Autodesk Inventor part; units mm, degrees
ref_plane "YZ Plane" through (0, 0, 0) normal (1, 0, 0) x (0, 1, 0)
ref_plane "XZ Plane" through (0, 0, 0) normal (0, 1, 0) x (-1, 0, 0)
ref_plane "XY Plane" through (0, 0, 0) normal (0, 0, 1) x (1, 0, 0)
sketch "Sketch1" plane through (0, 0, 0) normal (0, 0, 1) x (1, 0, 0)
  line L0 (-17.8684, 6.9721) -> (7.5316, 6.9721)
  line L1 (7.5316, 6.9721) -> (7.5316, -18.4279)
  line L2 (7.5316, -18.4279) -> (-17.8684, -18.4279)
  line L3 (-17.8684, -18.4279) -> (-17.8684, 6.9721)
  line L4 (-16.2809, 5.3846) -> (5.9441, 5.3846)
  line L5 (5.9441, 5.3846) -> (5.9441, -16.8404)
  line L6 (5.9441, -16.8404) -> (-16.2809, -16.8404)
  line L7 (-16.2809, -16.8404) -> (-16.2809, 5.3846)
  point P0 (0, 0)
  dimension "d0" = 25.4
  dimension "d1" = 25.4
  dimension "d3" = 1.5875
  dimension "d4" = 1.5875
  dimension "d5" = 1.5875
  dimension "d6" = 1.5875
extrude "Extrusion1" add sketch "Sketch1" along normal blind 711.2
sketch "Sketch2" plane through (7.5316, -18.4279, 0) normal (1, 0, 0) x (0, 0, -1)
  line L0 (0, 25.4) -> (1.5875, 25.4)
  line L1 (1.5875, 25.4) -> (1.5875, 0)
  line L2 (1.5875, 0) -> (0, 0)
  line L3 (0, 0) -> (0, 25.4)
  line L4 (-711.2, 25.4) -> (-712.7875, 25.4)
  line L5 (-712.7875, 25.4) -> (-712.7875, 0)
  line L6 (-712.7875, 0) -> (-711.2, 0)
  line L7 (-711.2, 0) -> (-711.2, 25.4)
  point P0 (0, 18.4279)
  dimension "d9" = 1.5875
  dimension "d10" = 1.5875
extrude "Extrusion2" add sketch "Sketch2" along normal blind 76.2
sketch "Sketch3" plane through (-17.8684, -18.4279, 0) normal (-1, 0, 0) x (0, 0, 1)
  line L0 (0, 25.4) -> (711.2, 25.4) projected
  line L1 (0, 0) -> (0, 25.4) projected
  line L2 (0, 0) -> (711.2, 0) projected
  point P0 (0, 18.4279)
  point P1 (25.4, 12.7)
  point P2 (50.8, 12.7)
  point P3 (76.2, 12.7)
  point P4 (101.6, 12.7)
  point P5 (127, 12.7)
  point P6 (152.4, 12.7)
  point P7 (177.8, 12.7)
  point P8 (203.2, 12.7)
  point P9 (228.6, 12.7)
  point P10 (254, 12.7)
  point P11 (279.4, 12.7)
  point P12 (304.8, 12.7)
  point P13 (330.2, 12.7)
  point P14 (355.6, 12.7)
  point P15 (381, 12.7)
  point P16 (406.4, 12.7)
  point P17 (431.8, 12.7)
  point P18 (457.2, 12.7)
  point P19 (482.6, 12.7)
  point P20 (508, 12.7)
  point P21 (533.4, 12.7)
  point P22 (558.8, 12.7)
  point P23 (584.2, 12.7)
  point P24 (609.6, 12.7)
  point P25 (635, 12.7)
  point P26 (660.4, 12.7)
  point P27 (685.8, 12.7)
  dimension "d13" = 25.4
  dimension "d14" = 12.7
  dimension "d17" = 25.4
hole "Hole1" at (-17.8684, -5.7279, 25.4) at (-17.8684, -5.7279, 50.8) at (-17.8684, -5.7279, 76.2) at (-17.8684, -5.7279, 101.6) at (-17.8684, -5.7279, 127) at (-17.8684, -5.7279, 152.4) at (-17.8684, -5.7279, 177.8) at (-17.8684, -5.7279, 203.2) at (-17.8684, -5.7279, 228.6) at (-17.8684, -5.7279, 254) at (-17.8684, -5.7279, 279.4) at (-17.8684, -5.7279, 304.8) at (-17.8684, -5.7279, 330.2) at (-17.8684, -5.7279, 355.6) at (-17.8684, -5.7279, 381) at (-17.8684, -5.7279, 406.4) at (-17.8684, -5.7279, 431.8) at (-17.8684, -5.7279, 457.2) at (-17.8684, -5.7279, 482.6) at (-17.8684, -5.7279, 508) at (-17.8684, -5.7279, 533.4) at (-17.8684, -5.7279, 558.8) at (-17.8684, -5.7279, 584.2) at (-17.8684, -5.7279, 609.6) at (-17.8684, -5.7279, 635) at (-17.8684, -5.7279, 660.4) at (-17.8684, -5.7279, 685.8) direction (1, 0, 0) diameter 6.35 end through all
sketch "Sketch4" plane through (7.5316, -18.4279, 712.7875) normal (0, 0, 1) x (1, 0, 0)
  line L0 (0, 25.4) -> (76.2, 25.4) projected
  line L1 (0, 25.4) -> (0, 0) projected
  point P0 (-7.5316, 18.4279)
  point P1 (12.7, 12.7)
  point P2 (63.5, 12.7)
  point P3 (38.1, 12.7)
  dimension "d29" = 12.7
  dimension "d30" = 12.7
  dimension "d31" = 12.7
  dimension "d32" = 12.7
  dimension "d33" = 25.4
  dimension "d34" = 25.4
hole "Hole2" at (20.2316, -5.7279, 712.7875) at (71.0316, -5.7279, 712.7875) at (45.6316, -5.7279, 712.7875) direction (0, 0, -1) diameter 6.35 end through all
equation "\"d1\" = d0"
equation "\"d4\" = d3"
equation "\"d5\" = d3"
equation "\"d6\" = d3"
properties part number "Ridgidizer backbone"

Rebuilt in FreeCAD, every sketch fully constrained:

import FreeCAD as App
import Part
import Sketcher
Q = App.Units.Quantity


def add_polygon(sketch, points):
    """Adds a closed chain of lines whose ends are joined by coincident constraints."""
    first, n = sketch.GeometryCount, len(points)
    for a, b in zip(points, points[1:] + points[:1]):
        sketch.addGeometry(Part.LineSegment(App.Vector(*a, 0), App.Vector(*b, 0)), False)
    for i in range(n):
        sketch.addConstraint(Sketcher.Constraint("Coincident", first + i, 2, first + (i + 1) % n, 1))

doc = App.newDocument("Part")
body = doc.addObject("PartDesign::Body", "Body")
body.AllowCompound = True

sketch1 = doc.addObject("Sketcher::SketchObject", "Sketch")
body.addObject(sketch1)
sketch1.AttachmentSupport = (doc.XY_Plane, [""])
sketch1.MapMode = "FlatFace"
add_polygon(sketch1, [(7.5316, 6.9721), (-17.8684, 6.9721), (-17.8684, -18.4279), (7.5316, -18.4279)])
add_polygon(sketch1, [(-16.2809, -16.8404), (-16.2809, 5.3846), (5.9441, 5.3846), (5.9441, -16.8404)])
sketch1.addConstraint(Sketcher.Constraint("Horizontal", 0))
sketch1.addConstraint(Sketcher.Constraint("Vertical", 1))
sketch1.addConstraint(Sketcher.Constraint("Horizontal", 2))
sketch1.addConstraint(Sketcher.Constraint("Vertical", 3))
sketch1.addConstraint(Sketcher.Constraint("Vertical", 4))
sketch1.addConstraint(Sketcher.Constraint("Horizontal", 5))
sketch1.addConstraint(Sketcher.Constraint("Vertical", 6))
sketch1.addConstraint(Sketcher.Constraint("Horizontal", 7))
sketch1.addConstraint(Sketcher.Constraint("Equal", 2, 1))
sketch1.addConstraint(Sketcher.Constraint("Equal", 7, 4))
sketch1.addConstraint(Sketcher.Constraint("DistanceX", 0, 2, 0, 1, Q("1 in")))
sketch1.addConstraint(Sketcher.Constraint("DistanceX", 0, 2, 4, 2, Q("0.0625 in")))
sketch1.addConstraint(Sketcher.Constraint("DistanceY", 4, 2, 0, 2, Q("0.0625 in")))
sketch1.addConstraint(Sketcher.Constraint("DistanceX", 5, 2, 3, 2, Q("0.0625 in")))
sketch1.addConstraint(Sketcher.Constraint("DistanceY", -1, 1, 4, 2, Q("0.212 in")))
sketch1.addConstraint(Sketcher.Constraint("DistanceX", 0, 2, -1, 1, 17.8684))
pad1 = doc.addObject("PartDesign::Pad", "Pad")
body.addObject(pad1)
pad1.Profile = sketch1
pad1.Length = Q("28 in")

sketch2 = doc.addObject("Sketcher::SketchObject", "Sketch001")
body.addObject(sketch2)
sketch2.AttachmentSupport = (doc.YZ_Plane, [""])
sketch2.MapMode = "FlatFace"
sketch2.AttachmentOffset = App.Placement(App.Vector(0, 0, 7.5316), App.Rotation())
add_polygon(sketch2, [(6.9721, -1.5875), (6.9721, 0), (-18.4279, 0), (-18.4279, -1.5875)])
add_polygon(sketch2, [(-18.4279, 711.2), (6.9721, 711.2), (6.9721, 712.7875), (-18.4279, 712.7875)])
sketch2.addConstraint(Sketcher.Constraint("Vertical", 0))
sketch2.addConstraint(Sketcher.Constraint("Horizontal", 1))
sketch2.addConstraint(Sketcher.Constraint("Vertical", 2))
sketch2.addConstraint(Sketcher.Constraint("Horizontal", 3))
sketch2.addConstraint(Sketcher.Constraint("Horizontal", 4))
sketch2.addConstraint(Sketcher.Constraint("Vertical", 5))
sketch2.addConstraint(Sketcher.Constraint("Horizontal", 6))
sketch2.addConstraint(Sketcher.Constraint("Vertical", 7))
sketch2.addConstraint(Sketcher.Constraint("PointOnObject", 0, 2, -1))
sketch2.addConstraint(Sketcher.Constraint("Vertical", 3, 2, 4, 2))
sketch2.addConstraint(Sketcher.Constraint("Vertical", 2, 2, 6, 2))
sketch2.addConstraint(Sketcher.Constraint("Equal", 2, 5))
sketch2.addConstraint(Sketcher.Constraint("DistanceX", 1, 2, 1, 1, Q("1 in")))
sketch2.addConstraint(Sketcher.Constraint("DistanceY", 0, 1, 0, 2, Q("0.0625 in")))
sketch2.addConstraint(Sketcher.Constraint("DistanceY", -1, 1, 4, 2, Q("28 in")))
sketch2.addConstraint(Sketcher.Constraint("DistanceX", -1, 1, 0, 2, Q("0.2745 in")))
pad2 = doc.addObject("PartDesign::Pad", "Pad001")
body.addObject(pad2)
pad2.Profile = sketch2
pad2.Length = Q("3 in")

sketch3 = doc.addObject("Sketcher::SketchObject", "Sketch002")
body.addObject(sketch3)
sketch3.AttachmentSupport = (doc.YZ_Plane, [""])
sketch3.MapMode = "FlatFace"
sketch3.AttachmentOffset = App.Placement(App.Vector(0, 0, -17.8684), App.Rotation())
sketch3.addGeometry(Part.Circle(App.Vector(-5.7279, 25.4, 0), App.Vector(0, 0, 1), 3.175), False)
sketch3.addGeometry(Part.Circle(App.Vector(-5.7279, 50.8, 0), App.Vector(0, 0, 1), 3.175), False)
sketch3.addGeometry(Part.Circle(App.Vector(-5.7279, 76.2, 0), App.Vector(0, 0, 1), 3.175), False)
sketch3.addGeometry(Part.Circle(App.Vector(-5.7279, 101.6, 0), App.Vector(0, 0, 1), 3.175), False)
sketch3.addGeometry(Part.Circle(App.Vector(-5.7279, 127, 0), App.Vector(0, 0, 1), 3.175), False)
sketch3.addGeometry(Part.Circle(App.Vector(-5.7279, 152.4, 0), App.Vector(0, 0, 1), 3.175), False)
sketch3.addGeometry(Part.Circle(App.Vector(-5.7279, 177.8, 0), App.Vector(0, 0, 1), 3.175), False)
sketch3.addGeometry(Part.Circle(App.Vector(-5.7279, 203.2, 0), App.Vector(0, 0, 1), 3.175), False)
sketch3.addGeometry(Part.Circle(App.Vector(-5.7279, 228.6, 0), App.Vector(0, 0, 1), 3.175), False)
sketch3.addGeometry(Part.Circle(App.Vector(-5.7279, 254, 0), App.Vector(0, 0, 1), 3.175), False)
sketch3.addGeometry(Part.Circle(App.Vector(-5.7279, 279.4, 0), App.Vector(0, 0, 1), 3.175), False)
sketch3.addGeometry(Part.Circle(App.Vector(-5.7279, 304.8, 0), App.Vector(0, 0, 1), 3.175), False)
sketch3.addGeometry(Part.Circle(App.Vector(-5.7279, 330.2, 0), App.Vector(0, 0, 1), 3.175), False)
sketch3.addGeometry(Part.Circle(App.Vector(-5.7279, 355.6, 0), App.Vector(0, 0, 1), 3.175), False)
sketch3.addGeometry(Part.Circle(App.Vector(-5.7279, 381, 0), App.Vector(0, 0, 1), 3.175), False)
sketch3.addGeometry(Part.Circle(App.Vector(-5.7279, 406.4, 0), App.Vector(0, 0, 1), 3.175), False)
sketch3.addGeometry(Part.Circle(App.Vector(-5.7279, 431.8, 0), App.Vector(0, 0, 1), 3.175), False)
sketch3.addGeometry(Part.Circle(App.Vector(-5.7279, 457.2, 0), App.Vector(0, 0, 1), 3.175), False)
sketch3.addGeometry(Part.Circle(App.Vector(-5.7279, 482.6, 0), App.Vector(0, 0, 1), 3.175), False)
sketch3.addGeometry(Part.Circle(App.Vector(-5.7279, 508, 0), App.Vector(0, 0, 1), 3.175), False)
sketch3.addGeometry(Part.Circle(App.Vector(-5.7279, 533.4, 0), App.Vector(0, 0, 1), 3.175), False)
sketch3.addGeometry(Part.Circle(App.Vector(-5.7279, 558.8, 0), App.Vector(0, 0, 1), 3.175), False)
sketch3.addGeometry(Part.Circle(App.Vector(-5.7279, 584.2, 0), App.Vector(0, 0, 1), 3.175), False)
sketch3.addGeometry(Part.Circle(App.Vector(-5.7279, 609.6, 0), App.Vector(0, 0, 1), 3.175), False)
sketch3.addGeometry(Part.Circle(App.Vector(-5.7279, 635, 0), App.Vector(0, 0, 1), 3.175), False)
sketch3.addGeometry(Part.Circle(App.Vector(-5.7279, 660.4, 0), App.Vector(0, 0, 1), 3.175), False)
sketch3.addGeometry(Part.Circle(App.Vector(-5.7279, 685.8, 0), App.Vector(0, 0, 1), 3.175), False)
sketch3.addConstraint(Sketcher.Constraint("Equal", 0, 1))
sketch3.addConstraint(Sketcher.Constraint("Equal", 1, 2))
sketch3.addConstraint(Sketcher.Constraint("Equal", 2, 3))
sketch3.addConstraint(Sketcher.Constraint("Equal", 3, 4))
sketch3.addConstraint(Sketcher.Constraint("Equal", 4, 5))
sketch3.addConstraint(Sketcher.Constraint("Equal", 5, 6))
sketch3.addConstraint(Sketcher.Constraint("Equal", 6, 7))
sketch3.addConstraint(Sketcher.Constraint("Equal", 7, 8))
sketch3.addConstraint(Sketcher.Constraint("Equal", 8, 9))
sketch3.addConstraint(Sketcher.Constraint("Equal", 9, 10))
sketch3.addConstraint(Sketcher.Constraint("Equal", 10, 11))
sketch3.addConstraint(Sketcher.Constraint("Equal", 11, 12))
sketch3.addConstraint(Sketcher.Constraint("Equal", 12, 13))
sketch3.addConstraint(Sketcher.Constraint("Equal", 13, 14))
sketch3.addConstraint(Sketcher.Constraint("Equal", 14, 15))
sketch3.addConstraint(Sketcher.Constraint("Equal", 15, 16))
sketch3.addConstraint(Sketcher.Constraint("Equal", 16, 17))
sketch3.addConstraint(Sketcher.Constraint("Equal", 17, 18))
sketch3.addConstraint(Sketcher.Constraint("Equal", 18, 19))
sketch3.addConstraint(Sketcher.Constraint("Equal", 19, 20))
sketch3.addConstraint(Sketcher.Constraint("Equal", 20, 21))
sketch3.addConstraint(Sketcher.Constraint("Equal", 21, 22))
sketch3.addConstraint(Sketcher.Constraint("Equal", 22, 23))
sketch3.addConstraint(Sketcher.Constraint("Equal", 23, 24))
sketch3.addConstraint(Sketcher.Constraint("Equal", 24, 25))
sketch3.addConstraint(Sketcher.Constraint("Equal", 25, 26))
sketch3.addConstraint(Sketcher.Constraint("Vertical", 0, 3, 1, 3))
sketch3.addConstraint(Sketcher.Constraint("Vertical", 1, 3, 2, 3))
sketch3.addConstraint(Sketcher.Constraint("Vertical", 2, 3, 3, 3))
sketch3.addConstraint(Sketcher.Constraint("Vertical", 3, 3, 4, 3))
sketch3.addConstraint(Sketcher.Constraint("Vertical", 4, 3, 5, 3))
sketch3.addConstraint(Sketcher.Constraint("Vertical", 5, 3, 6, 3))
sketch3.addConstraint(Sketcher.Constraint("Vertical", 6, 3, 7, 3))
sketch3.addConstraint(Sketcher.Constraint("Vertical", 7, 3, 8, 3))
sketch3.addConstraint(Sketcher.Constraint("Vertical", 8, 3, 9, 3))
sketch3.addConstraint(Sketcher.Constraint("Vertical", 9, 3, 10, 3))
sketch3.addConstraint(Sketcher.Constraint("Vertical", 10, 3, 11, 3))
sketch3.addConstraint(Sketcher.Constraint("Vertical", 11, 3, 12, 3))
sketch3.addConstraint(Sketcher.Constraint("Vertical", 12, 3, 13, 3))
sketch3.addConstraint(Sketcher.Constraint("Vertical", 13, 3, 14, 3))
sketch3.addConstraint(Sketcher.Constraint("Vertical", 14, 3, 15, 3))
sketch3.addConstraint(Sketcher.Constraint("Vertical", 15, 3, 16, 3))
sketch3.addConstraint(Sketcher.Constraint("Vertical", 16, 3, 17, 3))
sketch3.addConstraint(Sketcher.Constraint("Vertical", 17, 3, 18, 3))
sketch3.addConstraint(Sketcher.Constraint("Vertical", 18, 3, 19, 3))
sketch3.addConstraint(Sketcher.Constraint("Vertical", 19, 3, 20, 3))
sketch3.addConstraint(Sketcher.Constraint("Vertical", 20, 3, 21, 3))
sketch3.addConstraint(Sketcher.Constraint("Vertical", 21, 3, 22, 3))
sketch3.addConstraint(Sketcher.Constraint("Vertical", 22, 3, 23, 3))
sketch3.addConstraint(Sketcher.Constraint("Vertical", 23, 3, 24, 3))
sketch3.addConstraint(Sketcher.Constraint("Vertical", 24, 3, 25, 3))
sketch3.addConstraint(Sketcher.Constraint("Vertical", 25, 3, 26, 3))
sketch3.addConstraint(Sketcher.Constraint("Diameter", 0, Q("0.25 in")))
sketch3.addConstraint(Sketcher.Constraint("DistanceY", -1, 1, 0, 3, Q("1 in")))
sketch3.addConstraint(Sketcher.Constraint("DistanceY", -1, 1, 1, 3, Q("2 in")))
sketch3.addConstraint(Sketcher.Constraint("DistanceY", -1, 1, 2, 3, Q("3 in")))
sketch3.addConstraint(Sketcher.Constraint("DistanceY", -1, 1, 3, 3, Q("4 in")))
sketch3.addConstraint(Sketcher.Constraint("DistanceY", -1, 1, 4, 3, Q("5 in")))
sketch3.addConstraint(Sketcher.Constraint("DistanceY", -1, 1, 5, 3, Q("6 in")))
sketch3.addConstraint(Sketcher.Constraint("DistanceY", -1, 1, 6, 3, Q("7 in")))
sketch3.addConstraint(Sketcher.Constraint("DistanceY", -1, 1, 7, 3, Q("8 in")))
sketch3.addConstraint(Sketcher.Constraint("DistanceY", -1, 1, 8, 3, Q("9 in")))
sketch3.addConstraint(Sketcher.Constraint("DistanceY", -1, 1, 9, 3, Q("10 in")))
sketch3.addConstraint(Sketcher.Constraint("DistanceY", -1, 1, 10, 3, Q("11 in")))
sketch3.addConstraint(Sketcher.Constraint("DistanceY", -1, 1, 11, 3, Q("12 in")))
sketch3.addConstraint(Sketcher.Constraint("DistanceY", -1, 1, 12, 3, Q("13 in")))
sketch3.addConstraint(Sketcher.Constraint("DistanceY", -1, 1, 13, 3, Q("14 in")))
sketch3.addConstraint(Sketcher.Constraint("DistanceY", -1, 1, 14, 3, Q("15 in")))
sketch3.addConstraint(Sketcher.Constraint("DistanceY", -1, 1, 15, 3, Q("16 in")))
sketch3.addConstraint(Sketcher.Constraint("DistanceY", -1, 1, 16, 3, Q("17 in")))
sketch3.addConstraint(Sketcher.Constraint("DistanceY", -1, 1, 17, 3, Q("18 in")))
sketch3.addConstraint(Sketcher.Constraint("DistanceY", -1, 1, 18, 3, Q("19 in")))
sketch3.addConstraint(Sketcher.Constraint("DistanceY", -1, 1, 19, 3, Q("20 in")))
sketch3.addConstraint(Sketcher.Constraint("DistanceY", -1, 1, 20, 3, Q("21 in")))
sketch3.addConstraint(Sketcher.Constraint("DistanceY", -1, 1, 21, 3, Q("22 in")))
sketch3.addConstraint(Sketcher.Constraint("DistanceY", -1, 1, 22, 3, Q("23 in")))
sketch3.addConstraint(Sketcher.Constraint("DistanceY", -1, 1, 23, 3, Q("24 in")))
sketch3.addConstraint(Sketcher.Constraint("DistanceY", -1, 1, 24, 3, Q("25 in")))
sketch3.addConstraint(Sketcher.Constraint("DistanceY", -1, 1, 25, 3, Q("26 in")))
sketch3.addConstraint(Sketcher.Constraint("DistanceY", -1, 1, 26, 3, Q("27 in")))
sketch3.addConstraint(Sketcher.Constraint("DistanceX", 0, 3, -1, 1, Q("0.2255 in")))
doc.recompute()
hole = doc.addObject("PartDesign::Hole", "Hole")
body.addObject(hole)
hole.Profile = sketch3
hole.ThreadType = "None"
hole.Diameter = Q("0.25 in")
hole.DepthType = "ThroughAll"
hole.Reversed = True

sketch4 = doc.addObject("Sketcher::SketchObject", "Sketch003")
body.addObject(sketch4)
sketch4.AttachmentSupport = (doc.XY_Plane, [""])
sketch4.MapMode = "FlatFace"
sketch4.AttachmentOffset = App.Placement(App.Vector(0, 0, 28.0625 * 25.4), App.Rotation())
sketch4.addGeometry(Part.Circle(App.Vector(20.2316, -5.7279, 0), App.Vector(0, 0, 1), 3.175), False)
sketch4.addGeometry(Part.Circle(App.Vector(71.0316, -5.7279, 0), App.Vector(0, 0, 1), 3.175), False)
sketch4.addGeometry(Part.Circle(App.Vector(45.6316, -5.7279, 0), App.Vector(0, 0, 1), 3.175), False)
sketch4.addConstraint(Sketcher.Constraint("Equal", 0, 1))
sketch4.addConstraint(Sketcher.Constraint("Equal", 1, 2))
sketch4.addConstraint(Sketcher.Constraint("Horizontal", 0, 3, 1, 3))
sketch4.addConstraint(Sketcher.Constraint("Horizontal", 1, 3, 2, 3))
sketch4.addConstraint(Sketcher.Constraint("Diameter", 0, Q("0.25 in")))
sketch4.addConstraint(Sketcher.Constraint("DistanceX", 0, 3, 1, 3, Q("2 in")))
sketch4.addConstraint(Sketcher.Constraint("DistanceX", 0, 3, 2, 3, Q("1 in")))
sketch4.addConstraint(Sketcher.Constraint("DistanceY", 0, 3, -1, 1, Q("0.2255 in")))
sketch4.addConstraint(Sketcher.Constraint("DistanceX", -1, 1, 0, 3, 20.2316))
doc.recompute()
hole2 = doc.addObject("PartDesign::Hole", "Hole001")
body.addObject(hole2)
hole2.Profile = sketch4
hole2.ThreadType = "None"
hole2.Diameter = Q("0.25 in")
hole2.DepthType = "ThroughAll"

doc.recompute()
